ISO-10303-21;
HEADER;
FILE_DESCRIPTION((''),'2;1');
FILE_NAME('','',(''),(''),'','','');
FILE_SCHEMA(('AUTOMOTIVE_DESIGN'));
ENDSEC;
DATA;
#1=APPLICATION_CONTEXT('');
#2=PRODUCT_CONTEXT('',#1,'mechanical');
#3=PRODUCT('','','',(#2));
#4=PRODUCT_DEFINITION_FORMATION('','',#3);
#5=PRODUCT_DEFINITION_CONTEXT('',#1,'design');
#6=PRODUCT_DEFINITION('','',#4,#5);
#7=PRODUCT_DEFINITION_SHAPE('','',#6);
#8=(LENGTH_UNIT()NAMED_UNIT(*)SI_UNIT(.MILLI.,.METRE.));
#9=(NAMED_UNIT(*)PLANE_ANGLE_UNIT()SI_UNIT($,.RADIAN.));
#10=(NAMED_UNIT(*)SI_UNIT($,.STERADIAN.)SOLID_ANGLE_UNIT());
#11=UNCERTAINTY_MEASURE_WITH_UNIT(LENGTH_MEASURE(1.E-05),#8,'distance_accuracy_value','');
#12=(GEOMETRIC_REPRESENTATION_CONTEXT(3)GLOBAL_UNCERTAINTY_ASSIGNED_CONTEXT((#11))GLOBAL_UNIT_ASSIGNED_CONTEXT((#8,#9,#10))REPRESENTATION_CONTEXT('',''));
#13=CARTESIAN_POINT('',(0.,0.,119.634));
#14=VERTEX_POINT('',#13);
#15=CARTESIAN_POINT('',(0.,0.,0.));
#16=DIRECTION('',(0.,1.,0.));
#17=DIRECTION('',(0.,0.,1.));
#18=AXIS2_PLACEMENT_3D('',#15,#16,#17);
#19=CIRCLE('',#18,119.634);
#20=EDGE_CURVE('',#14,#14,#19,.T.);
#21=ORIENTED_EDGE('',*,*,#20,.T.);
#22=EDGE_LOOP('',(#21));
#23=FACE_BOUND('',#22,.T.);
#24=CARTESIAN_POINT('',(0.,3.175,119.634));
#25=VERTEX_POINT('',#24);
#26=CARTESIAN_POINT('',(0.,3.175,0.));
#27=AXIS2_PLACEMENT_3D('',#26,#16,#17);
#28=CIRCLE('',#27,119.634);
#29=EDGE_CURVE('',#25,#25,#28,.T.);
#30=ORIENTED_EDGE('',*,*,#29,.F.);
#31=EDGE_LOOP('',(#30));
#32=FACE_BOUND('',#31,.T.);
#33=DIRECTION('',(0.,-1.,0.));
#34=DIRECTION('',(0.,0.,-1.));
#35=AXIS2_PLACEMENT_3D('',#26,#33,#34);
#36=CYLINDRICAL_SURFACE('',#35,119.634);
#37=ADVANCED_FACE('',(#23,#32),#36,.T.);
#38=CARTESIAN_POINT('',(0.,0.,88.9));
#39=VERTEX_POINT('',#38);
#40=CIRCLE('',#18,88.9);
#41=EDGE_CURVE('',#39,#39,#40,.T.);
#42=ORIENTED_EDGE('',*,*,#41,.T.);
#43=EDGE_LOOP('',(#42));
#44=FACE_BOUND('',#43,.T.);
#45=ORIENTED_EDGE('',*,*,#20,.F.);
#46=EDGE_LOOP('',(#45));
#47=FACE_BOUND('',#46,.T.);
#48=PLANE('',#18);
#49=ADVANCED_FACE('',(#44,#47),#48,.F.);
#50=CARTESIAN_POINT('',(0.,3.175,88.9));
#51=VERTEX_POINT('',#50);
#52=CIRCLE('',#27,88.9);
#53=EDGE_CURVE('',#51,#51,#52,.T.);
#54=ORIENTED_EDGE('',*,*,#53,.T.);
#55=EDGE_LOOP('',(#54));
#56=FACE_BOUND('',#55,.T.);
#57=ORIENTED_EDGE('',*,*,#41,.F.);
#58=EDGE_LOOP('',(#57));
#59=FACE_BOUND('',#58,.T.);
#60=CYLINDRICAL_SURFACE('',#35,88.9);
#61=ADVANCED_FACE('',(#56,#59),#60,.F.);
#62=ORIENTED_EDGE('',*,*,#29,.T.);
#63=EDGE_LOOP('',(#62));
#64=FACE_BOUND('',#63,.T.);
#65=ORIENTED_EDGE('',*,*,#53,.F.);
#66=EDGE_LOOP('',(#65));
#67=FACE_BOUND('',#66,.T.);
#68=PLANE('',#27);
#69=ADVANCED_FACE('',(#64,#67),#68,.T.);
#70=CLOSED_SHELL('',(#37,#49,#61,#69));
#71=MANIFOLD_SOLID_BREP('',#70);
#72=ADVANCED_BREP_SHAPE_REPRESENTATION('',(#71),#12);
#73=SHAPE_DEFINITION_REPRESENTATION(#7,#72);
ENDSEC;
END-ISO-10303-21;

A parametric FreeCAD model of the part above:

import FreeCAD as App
import Part
import Sketcher
from FreeCAD import Vector
Q = App.Units.Quantity

doc = App.newDocument("Part")
body = doc.addObject("PartDesign::Body", "Body")

# Sketch on XZ plane
sketch1 = doc.addObject("Sketcher::SketchObject", "Sketch")
body.addObject(sketch1)
sketch1.AttachmentSupport = (doc.XZ_Plane, [""])
sketch1.MapMode = "FlatFace"
sketch1.addGeometry(Part.Circle(Vector(0, 0, 0), Vector(0, 0, 1), 120), False)
sketch1.addGeometry(Part.Circle(Vector(0, 0, 0), Vector(0, 0, 1), 89), False)
sketch1.addConstraint(Sketcher.Constraint("Coincident", 0, 3, -1, 1))
sketch1.addConstraint(Sketcher.Constraint("Coincident", 1, 3, -1, 1))
sketch1.addConstraint(Sketcher.Constraint("Diameter", 1, Q("7 in")))
sketch1.addConstraint(Sketcher.Constraint("Diameter", 0, Q("9.42 in")))
pad1 = doc.addObject("PartDesign::Pad", "Pad")
body.addObject(pad1)
pad1.Profile = sketch1
pad1.Length = Q("0.125 in")
pad1.Reversed = True

doc.recompute()
